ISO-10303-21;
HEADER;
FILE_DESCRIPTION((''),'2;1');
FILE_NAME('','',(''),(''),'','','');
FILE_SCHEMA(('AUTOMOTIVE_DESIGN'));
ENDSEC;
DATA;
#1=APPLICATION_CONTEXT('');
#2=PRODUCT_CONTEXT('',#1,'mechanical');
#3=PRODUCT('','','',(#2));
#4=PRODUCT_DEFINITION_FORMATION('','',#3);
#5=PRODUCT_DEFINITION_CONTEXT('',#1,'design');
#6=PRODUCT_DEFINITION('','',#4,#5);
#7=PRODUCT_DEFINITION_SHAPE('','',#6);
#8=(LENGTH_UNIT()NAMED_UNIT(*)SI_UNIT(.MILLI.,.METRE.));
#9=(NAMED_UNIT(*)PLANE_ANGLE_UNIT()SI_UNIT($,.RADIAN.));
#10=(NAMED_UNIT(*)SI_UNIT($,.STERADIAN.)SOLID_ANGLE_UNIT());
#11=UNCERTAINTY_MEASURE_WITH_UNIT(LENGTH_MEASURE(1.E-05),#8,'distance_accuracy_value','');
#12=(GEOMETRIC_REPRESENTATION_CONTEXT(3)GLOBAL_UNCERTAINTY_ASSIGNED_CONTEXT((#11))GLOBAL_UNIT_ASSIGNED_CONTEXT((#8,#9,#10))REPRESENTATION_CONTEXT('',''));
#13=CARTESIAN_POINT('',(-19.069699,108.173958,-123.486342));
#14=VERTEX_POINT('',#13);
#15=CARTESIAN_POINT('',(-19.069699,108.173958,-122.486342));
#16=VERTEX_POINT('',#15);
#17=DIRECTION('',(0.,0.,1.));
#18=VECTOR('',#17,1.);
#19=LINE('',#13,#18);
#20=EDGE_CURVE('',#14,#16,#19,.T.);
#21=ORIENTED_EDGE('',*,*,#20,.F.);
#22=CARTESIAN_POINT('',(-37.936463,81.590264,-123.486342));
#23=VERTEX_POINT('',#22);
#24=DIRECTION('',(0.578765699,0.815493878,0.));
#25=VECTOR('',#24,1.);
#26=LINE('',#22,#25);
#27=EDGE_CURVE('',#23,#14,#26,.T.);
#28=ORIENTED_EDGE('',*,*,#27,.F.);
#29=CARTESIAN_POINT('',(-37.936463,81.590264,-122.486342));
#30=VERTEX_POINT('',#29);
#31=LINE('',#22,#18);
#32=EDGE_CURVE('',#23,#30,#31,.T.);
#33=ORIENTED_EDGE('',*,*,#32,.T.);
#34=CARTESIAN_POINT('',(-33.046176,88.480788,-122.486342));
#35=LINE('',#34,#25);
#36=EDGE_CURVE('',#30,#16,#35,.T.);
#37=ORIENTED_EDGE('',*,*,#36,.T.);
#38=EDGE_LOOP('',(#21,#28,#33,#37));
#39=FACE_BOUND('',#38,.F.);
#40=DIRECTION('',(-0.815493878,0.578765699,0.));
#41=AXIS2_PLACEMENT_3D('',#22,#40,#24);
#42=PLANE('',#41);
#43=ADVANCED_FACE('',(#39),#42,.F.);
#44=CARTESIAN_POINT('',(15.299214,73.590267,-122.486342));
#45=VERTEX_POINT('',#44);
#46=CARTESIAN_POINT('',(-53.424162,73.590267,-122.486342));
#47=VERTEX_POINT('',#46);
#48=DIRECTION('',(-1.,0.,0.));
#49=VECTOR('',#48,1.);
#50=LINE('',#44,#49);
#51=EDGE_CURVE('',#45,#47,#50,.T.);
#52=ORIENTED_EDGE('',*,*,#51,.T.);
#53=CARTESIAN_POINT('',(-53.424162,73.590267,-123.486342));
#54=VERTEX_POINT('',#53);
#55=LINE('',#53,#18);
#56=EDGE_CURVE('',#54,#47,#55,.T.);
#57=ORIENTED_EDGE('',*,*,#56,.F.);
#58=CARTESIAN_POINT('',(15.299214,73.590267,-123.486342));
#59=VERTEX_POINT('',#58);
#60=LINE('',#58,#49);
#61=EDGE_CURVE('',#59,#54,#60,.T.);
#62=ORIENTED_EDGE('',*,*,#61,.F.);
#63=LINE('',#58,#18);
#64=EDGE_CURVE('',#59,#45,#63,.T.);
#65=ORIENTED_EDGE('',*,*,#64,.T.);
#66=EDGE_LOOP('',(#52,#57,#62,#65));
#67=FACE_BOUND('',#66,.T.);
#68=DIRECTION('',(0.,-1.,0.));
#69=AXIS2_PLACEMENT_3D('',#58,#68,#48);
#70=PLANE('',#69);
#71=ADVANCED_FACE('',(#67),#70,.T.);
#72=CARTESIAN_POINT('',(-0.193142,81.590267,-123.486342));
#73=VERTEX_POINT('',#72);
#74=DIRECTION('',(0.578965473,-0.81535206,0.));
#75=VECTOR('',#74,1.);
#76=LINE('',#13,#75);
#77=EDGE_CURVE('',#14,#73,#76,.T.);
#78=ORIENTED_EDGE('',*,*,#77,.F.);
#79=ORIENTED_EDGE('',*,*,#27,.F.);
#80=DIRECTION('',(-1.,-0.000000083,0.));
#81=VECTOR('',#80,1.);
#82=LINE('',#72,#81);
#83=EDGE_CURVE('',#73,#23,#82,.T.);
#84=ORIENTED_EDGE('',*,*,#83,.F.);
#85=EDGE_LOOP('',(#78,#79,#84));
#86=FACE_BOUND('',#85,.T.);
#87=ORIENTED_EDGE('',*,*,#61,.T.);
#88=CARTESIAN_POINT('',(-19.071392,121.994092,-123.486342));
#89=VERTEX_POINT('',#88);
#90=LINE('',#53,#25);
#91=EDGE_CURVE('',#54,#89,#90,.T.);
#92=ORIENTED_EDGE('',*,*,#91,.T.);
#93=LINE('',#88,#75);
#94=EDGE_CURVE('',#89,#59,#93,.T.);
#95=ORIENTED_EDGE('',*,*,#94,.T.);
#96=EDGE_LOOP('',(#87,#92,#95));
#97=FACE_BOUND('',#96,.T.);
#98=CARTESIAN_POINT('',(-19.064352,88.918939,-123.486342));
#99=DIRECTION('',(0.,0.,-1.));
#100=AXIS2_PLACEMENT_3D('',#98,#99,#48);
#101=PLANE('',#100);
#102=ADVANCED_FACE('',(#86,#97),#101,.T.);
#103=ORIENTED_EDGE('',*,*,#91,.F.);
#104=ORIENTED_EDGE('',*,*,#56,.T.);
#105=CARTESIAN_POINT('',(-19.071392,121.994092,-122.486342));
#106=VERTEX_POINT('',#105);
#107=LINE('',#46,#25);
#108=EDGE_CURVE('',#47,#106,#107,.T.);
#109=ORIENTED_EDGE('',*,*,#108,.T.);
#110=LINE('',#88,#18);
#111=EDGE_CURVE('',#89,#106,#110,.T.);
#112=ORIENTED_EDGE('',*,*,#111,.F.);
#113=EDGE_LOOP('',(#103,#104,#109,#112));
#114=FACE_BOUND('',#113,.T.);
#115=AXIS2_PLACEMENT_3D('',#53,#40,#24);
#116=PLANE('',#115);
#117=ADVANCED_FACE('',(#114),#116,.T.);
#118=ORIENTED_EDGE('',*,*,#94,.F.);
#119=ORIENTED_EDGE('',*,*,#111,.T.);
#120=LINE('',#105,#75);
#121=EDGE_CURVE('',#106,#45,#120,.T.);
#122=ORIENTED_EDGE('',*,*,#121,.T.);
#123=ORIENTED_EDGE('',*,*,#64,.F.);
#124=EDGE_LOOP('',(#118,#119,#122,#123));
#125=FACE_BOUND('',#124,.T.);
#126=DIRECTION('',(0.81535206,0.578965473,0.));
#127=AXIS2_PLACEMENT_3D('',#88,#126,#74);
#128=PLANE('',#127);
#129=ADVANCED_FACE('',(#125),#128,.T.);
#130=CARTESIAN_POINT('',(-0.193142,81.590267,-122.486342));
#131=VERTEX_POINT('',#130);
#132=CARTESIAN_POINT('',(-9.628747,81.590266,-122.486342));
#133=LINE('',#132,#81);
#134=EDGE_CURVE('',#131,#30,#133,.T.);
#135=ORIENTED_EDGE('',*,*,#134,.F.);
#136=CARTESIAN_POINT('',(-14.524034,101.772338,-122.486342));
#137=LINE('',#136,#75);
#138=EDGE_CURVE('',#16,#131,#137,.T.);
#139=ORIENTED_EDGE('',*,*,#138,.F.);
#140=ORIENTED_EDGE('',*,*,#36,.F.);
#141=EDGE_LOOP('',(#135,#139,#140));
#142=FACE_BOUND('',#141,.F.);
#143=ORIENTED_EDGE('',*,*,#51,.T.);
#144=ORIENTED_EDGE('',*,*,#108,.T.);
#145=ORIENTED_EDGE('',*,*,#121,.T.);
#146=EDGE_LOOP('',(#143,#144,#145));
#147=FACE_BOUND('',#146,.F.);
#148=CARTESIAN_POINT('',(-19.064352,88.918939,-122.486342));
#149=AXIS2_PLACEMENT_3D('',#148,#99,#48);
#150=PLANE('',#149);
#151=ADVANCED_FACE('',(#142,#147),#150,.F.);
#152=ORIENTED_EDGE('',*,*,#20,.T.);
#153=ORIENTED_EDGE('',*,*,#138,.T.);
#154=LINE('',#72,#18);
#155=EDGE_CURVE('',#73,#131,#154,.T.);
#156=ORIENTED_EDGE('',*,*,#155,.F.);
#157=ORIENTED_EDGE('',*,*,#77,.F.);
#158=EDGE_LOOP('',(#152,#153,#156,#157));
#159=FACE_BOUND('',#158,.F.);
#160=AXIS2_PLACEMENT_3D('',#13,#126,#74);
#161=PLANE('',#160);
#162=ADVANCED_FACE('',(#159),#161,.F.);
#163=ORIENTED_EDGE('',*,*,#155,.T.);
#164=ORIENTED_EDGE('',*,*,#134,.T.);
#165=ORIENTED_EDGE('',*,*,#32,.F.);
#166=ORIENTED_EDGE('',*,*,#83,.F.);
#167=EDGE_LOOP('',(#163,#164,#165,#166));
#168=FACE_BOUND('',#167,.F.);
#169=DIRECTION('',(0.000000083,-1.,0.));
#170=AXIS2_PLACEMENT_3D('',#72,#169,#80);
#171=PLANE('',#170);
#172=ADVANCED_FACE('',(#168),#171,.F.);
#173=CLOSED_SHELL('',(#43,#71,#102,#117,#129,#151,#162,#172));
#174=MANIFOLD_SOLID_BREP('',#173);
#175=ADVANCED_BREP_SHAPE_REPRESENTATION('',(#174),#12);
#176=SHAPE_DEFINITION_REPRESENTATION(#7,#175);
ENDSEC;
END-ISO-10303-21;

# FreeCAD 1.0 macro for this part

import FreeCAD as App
import Part
import Sketcher
from FreeCAD import Vector
Q = App.Units.Quantity


def add_polygon(sketch, points):
    """Adds a closed chain of lines whose ends are joined by coincident constraints."""
    first, n = sketch.GeometryCount, len(points)
    for a, b in zip(points, points[1:] + points[:1]):
        sketch.addGeometry(Part.LineSegment(App.Vector(*a, 0), App.Vector(*b, 0)), False)
    for i in range(n):
        sketch.addConstraint(Sketcher.Constraint("Coincident", first + i, 2, first + (i + 1) % n, 1))

doc = App.newDocument("Part")
params = doc.addObject("Spreadsheet::Sheet", "Params")
for row, (alias, value) in enumerate([
    ("pad1_length", "57.966296 mm"),
    ("pad2_length", "1 mm"),
], start=1):
    params.set(f"A{row}", alias)
    params.set(f"B{row}", "=" + value)
    params.setAlias(f"B{row}", alias)

body = doc.addObject("PartDesign::Body", "Body")

# Sketch on XY plane
sketch1 = body.newObject("Sketcher::SketchObject", "Sketch")
sketch1.AttachmentSupport = (doc.getObject("XY_Plane"), [""])
sketch1.MapMode = "FlatFace"
sketch1.AttachmentOffset = App.Placement(Vector(0, 0, -123.486342), App.Rotation())
add_polygon(sketch1, [(-19, 108), (0, 82), (-38, 82)])  # lines 0-2
sketch1.addConstraint(Sketcher.Constraint("Angle", 1, Q("-179.999995 deg")))
sketch1.addConstraint(Sketcher.Constraint("DistanceX", 2, 2, -1, 1, Q("19.069699 mm")))
sketch1.addConstraint(Sketcher.Constraint("Distance", 1, Q("37.743321 mm")))
sketch1.addConstraint(Sketcher.Constraint("DistanceX", 0, 2, -1, 1, Q("0.193142 mm")))
sketch1.addConstraint(Sketcher.Constraint("DistanceY", -1, 1, 2, 2, Q("108.173958 mm")))
sketch1.addConstraint(Sketcher.Constraint("DistanceY", 0, 2, 2, 2, Q("26.583691 mm")))
pad1 = body.newObject("PartDesign::Pad", "Pad")
pad1.Profile = sketch1
pad1.setExpression("Length", "Params.pad1_length")
body2 = doc.addObject("PartDesign::Body", "Body001")

# Sketch on XY plane
sketch2 = body2.newObject("Sketcher::SketchObject", "Sketch001")
sketch2.AttachmentSupport = (doc.getObject("XY_Plane001"), [""])
sketch2.MapMode = "FlatFace"
sketch2.AttachmentOffset = App.Placement(Vector(0, 0, -123.486342), App.Rotation())
add_polygon(sketch2, [(-53, 74), (15, 74), (-19, 122)])  # lines 0-2
sketch2.addConstraint(Sketcher.Constraint("Horizontal", 0))
sketch2.addConstraint(Sketcher.Constraint("Distance", 2, Q("59.355229 mm")))
sketch2.addConstraint(Sketcher.Constraint("DistanceX", 0, 1, 0, 2, Q("68.723376 mm")))
sketch2.addConstraint(Sketcher.Constraint("DistanceX", 1, 2, -1, 1, Q("19.071392 mm")))
sketch2.addConstraint(Sketcher.Constraint("DistanceX", 2, 2, -1, 1, Q("53.424162 mm")))
sketch2.addConstraint(Sketcher.Constraint("DistanceY", -1, 1, 0, 2, Q("73.590267 mm")))
pad2 = body2.newObject("PartDesign::Pad", "Pad001")
pad2.Profile = sketch2
pad2.setExpression("Length", "Params.pad2_length")
doc.recompute()

boolean = body2.newObject("PartDesign::Boolean", "Boolean")
boolean.Type = "Cut"
boolean.addObjects([body])

doc.recompute()
